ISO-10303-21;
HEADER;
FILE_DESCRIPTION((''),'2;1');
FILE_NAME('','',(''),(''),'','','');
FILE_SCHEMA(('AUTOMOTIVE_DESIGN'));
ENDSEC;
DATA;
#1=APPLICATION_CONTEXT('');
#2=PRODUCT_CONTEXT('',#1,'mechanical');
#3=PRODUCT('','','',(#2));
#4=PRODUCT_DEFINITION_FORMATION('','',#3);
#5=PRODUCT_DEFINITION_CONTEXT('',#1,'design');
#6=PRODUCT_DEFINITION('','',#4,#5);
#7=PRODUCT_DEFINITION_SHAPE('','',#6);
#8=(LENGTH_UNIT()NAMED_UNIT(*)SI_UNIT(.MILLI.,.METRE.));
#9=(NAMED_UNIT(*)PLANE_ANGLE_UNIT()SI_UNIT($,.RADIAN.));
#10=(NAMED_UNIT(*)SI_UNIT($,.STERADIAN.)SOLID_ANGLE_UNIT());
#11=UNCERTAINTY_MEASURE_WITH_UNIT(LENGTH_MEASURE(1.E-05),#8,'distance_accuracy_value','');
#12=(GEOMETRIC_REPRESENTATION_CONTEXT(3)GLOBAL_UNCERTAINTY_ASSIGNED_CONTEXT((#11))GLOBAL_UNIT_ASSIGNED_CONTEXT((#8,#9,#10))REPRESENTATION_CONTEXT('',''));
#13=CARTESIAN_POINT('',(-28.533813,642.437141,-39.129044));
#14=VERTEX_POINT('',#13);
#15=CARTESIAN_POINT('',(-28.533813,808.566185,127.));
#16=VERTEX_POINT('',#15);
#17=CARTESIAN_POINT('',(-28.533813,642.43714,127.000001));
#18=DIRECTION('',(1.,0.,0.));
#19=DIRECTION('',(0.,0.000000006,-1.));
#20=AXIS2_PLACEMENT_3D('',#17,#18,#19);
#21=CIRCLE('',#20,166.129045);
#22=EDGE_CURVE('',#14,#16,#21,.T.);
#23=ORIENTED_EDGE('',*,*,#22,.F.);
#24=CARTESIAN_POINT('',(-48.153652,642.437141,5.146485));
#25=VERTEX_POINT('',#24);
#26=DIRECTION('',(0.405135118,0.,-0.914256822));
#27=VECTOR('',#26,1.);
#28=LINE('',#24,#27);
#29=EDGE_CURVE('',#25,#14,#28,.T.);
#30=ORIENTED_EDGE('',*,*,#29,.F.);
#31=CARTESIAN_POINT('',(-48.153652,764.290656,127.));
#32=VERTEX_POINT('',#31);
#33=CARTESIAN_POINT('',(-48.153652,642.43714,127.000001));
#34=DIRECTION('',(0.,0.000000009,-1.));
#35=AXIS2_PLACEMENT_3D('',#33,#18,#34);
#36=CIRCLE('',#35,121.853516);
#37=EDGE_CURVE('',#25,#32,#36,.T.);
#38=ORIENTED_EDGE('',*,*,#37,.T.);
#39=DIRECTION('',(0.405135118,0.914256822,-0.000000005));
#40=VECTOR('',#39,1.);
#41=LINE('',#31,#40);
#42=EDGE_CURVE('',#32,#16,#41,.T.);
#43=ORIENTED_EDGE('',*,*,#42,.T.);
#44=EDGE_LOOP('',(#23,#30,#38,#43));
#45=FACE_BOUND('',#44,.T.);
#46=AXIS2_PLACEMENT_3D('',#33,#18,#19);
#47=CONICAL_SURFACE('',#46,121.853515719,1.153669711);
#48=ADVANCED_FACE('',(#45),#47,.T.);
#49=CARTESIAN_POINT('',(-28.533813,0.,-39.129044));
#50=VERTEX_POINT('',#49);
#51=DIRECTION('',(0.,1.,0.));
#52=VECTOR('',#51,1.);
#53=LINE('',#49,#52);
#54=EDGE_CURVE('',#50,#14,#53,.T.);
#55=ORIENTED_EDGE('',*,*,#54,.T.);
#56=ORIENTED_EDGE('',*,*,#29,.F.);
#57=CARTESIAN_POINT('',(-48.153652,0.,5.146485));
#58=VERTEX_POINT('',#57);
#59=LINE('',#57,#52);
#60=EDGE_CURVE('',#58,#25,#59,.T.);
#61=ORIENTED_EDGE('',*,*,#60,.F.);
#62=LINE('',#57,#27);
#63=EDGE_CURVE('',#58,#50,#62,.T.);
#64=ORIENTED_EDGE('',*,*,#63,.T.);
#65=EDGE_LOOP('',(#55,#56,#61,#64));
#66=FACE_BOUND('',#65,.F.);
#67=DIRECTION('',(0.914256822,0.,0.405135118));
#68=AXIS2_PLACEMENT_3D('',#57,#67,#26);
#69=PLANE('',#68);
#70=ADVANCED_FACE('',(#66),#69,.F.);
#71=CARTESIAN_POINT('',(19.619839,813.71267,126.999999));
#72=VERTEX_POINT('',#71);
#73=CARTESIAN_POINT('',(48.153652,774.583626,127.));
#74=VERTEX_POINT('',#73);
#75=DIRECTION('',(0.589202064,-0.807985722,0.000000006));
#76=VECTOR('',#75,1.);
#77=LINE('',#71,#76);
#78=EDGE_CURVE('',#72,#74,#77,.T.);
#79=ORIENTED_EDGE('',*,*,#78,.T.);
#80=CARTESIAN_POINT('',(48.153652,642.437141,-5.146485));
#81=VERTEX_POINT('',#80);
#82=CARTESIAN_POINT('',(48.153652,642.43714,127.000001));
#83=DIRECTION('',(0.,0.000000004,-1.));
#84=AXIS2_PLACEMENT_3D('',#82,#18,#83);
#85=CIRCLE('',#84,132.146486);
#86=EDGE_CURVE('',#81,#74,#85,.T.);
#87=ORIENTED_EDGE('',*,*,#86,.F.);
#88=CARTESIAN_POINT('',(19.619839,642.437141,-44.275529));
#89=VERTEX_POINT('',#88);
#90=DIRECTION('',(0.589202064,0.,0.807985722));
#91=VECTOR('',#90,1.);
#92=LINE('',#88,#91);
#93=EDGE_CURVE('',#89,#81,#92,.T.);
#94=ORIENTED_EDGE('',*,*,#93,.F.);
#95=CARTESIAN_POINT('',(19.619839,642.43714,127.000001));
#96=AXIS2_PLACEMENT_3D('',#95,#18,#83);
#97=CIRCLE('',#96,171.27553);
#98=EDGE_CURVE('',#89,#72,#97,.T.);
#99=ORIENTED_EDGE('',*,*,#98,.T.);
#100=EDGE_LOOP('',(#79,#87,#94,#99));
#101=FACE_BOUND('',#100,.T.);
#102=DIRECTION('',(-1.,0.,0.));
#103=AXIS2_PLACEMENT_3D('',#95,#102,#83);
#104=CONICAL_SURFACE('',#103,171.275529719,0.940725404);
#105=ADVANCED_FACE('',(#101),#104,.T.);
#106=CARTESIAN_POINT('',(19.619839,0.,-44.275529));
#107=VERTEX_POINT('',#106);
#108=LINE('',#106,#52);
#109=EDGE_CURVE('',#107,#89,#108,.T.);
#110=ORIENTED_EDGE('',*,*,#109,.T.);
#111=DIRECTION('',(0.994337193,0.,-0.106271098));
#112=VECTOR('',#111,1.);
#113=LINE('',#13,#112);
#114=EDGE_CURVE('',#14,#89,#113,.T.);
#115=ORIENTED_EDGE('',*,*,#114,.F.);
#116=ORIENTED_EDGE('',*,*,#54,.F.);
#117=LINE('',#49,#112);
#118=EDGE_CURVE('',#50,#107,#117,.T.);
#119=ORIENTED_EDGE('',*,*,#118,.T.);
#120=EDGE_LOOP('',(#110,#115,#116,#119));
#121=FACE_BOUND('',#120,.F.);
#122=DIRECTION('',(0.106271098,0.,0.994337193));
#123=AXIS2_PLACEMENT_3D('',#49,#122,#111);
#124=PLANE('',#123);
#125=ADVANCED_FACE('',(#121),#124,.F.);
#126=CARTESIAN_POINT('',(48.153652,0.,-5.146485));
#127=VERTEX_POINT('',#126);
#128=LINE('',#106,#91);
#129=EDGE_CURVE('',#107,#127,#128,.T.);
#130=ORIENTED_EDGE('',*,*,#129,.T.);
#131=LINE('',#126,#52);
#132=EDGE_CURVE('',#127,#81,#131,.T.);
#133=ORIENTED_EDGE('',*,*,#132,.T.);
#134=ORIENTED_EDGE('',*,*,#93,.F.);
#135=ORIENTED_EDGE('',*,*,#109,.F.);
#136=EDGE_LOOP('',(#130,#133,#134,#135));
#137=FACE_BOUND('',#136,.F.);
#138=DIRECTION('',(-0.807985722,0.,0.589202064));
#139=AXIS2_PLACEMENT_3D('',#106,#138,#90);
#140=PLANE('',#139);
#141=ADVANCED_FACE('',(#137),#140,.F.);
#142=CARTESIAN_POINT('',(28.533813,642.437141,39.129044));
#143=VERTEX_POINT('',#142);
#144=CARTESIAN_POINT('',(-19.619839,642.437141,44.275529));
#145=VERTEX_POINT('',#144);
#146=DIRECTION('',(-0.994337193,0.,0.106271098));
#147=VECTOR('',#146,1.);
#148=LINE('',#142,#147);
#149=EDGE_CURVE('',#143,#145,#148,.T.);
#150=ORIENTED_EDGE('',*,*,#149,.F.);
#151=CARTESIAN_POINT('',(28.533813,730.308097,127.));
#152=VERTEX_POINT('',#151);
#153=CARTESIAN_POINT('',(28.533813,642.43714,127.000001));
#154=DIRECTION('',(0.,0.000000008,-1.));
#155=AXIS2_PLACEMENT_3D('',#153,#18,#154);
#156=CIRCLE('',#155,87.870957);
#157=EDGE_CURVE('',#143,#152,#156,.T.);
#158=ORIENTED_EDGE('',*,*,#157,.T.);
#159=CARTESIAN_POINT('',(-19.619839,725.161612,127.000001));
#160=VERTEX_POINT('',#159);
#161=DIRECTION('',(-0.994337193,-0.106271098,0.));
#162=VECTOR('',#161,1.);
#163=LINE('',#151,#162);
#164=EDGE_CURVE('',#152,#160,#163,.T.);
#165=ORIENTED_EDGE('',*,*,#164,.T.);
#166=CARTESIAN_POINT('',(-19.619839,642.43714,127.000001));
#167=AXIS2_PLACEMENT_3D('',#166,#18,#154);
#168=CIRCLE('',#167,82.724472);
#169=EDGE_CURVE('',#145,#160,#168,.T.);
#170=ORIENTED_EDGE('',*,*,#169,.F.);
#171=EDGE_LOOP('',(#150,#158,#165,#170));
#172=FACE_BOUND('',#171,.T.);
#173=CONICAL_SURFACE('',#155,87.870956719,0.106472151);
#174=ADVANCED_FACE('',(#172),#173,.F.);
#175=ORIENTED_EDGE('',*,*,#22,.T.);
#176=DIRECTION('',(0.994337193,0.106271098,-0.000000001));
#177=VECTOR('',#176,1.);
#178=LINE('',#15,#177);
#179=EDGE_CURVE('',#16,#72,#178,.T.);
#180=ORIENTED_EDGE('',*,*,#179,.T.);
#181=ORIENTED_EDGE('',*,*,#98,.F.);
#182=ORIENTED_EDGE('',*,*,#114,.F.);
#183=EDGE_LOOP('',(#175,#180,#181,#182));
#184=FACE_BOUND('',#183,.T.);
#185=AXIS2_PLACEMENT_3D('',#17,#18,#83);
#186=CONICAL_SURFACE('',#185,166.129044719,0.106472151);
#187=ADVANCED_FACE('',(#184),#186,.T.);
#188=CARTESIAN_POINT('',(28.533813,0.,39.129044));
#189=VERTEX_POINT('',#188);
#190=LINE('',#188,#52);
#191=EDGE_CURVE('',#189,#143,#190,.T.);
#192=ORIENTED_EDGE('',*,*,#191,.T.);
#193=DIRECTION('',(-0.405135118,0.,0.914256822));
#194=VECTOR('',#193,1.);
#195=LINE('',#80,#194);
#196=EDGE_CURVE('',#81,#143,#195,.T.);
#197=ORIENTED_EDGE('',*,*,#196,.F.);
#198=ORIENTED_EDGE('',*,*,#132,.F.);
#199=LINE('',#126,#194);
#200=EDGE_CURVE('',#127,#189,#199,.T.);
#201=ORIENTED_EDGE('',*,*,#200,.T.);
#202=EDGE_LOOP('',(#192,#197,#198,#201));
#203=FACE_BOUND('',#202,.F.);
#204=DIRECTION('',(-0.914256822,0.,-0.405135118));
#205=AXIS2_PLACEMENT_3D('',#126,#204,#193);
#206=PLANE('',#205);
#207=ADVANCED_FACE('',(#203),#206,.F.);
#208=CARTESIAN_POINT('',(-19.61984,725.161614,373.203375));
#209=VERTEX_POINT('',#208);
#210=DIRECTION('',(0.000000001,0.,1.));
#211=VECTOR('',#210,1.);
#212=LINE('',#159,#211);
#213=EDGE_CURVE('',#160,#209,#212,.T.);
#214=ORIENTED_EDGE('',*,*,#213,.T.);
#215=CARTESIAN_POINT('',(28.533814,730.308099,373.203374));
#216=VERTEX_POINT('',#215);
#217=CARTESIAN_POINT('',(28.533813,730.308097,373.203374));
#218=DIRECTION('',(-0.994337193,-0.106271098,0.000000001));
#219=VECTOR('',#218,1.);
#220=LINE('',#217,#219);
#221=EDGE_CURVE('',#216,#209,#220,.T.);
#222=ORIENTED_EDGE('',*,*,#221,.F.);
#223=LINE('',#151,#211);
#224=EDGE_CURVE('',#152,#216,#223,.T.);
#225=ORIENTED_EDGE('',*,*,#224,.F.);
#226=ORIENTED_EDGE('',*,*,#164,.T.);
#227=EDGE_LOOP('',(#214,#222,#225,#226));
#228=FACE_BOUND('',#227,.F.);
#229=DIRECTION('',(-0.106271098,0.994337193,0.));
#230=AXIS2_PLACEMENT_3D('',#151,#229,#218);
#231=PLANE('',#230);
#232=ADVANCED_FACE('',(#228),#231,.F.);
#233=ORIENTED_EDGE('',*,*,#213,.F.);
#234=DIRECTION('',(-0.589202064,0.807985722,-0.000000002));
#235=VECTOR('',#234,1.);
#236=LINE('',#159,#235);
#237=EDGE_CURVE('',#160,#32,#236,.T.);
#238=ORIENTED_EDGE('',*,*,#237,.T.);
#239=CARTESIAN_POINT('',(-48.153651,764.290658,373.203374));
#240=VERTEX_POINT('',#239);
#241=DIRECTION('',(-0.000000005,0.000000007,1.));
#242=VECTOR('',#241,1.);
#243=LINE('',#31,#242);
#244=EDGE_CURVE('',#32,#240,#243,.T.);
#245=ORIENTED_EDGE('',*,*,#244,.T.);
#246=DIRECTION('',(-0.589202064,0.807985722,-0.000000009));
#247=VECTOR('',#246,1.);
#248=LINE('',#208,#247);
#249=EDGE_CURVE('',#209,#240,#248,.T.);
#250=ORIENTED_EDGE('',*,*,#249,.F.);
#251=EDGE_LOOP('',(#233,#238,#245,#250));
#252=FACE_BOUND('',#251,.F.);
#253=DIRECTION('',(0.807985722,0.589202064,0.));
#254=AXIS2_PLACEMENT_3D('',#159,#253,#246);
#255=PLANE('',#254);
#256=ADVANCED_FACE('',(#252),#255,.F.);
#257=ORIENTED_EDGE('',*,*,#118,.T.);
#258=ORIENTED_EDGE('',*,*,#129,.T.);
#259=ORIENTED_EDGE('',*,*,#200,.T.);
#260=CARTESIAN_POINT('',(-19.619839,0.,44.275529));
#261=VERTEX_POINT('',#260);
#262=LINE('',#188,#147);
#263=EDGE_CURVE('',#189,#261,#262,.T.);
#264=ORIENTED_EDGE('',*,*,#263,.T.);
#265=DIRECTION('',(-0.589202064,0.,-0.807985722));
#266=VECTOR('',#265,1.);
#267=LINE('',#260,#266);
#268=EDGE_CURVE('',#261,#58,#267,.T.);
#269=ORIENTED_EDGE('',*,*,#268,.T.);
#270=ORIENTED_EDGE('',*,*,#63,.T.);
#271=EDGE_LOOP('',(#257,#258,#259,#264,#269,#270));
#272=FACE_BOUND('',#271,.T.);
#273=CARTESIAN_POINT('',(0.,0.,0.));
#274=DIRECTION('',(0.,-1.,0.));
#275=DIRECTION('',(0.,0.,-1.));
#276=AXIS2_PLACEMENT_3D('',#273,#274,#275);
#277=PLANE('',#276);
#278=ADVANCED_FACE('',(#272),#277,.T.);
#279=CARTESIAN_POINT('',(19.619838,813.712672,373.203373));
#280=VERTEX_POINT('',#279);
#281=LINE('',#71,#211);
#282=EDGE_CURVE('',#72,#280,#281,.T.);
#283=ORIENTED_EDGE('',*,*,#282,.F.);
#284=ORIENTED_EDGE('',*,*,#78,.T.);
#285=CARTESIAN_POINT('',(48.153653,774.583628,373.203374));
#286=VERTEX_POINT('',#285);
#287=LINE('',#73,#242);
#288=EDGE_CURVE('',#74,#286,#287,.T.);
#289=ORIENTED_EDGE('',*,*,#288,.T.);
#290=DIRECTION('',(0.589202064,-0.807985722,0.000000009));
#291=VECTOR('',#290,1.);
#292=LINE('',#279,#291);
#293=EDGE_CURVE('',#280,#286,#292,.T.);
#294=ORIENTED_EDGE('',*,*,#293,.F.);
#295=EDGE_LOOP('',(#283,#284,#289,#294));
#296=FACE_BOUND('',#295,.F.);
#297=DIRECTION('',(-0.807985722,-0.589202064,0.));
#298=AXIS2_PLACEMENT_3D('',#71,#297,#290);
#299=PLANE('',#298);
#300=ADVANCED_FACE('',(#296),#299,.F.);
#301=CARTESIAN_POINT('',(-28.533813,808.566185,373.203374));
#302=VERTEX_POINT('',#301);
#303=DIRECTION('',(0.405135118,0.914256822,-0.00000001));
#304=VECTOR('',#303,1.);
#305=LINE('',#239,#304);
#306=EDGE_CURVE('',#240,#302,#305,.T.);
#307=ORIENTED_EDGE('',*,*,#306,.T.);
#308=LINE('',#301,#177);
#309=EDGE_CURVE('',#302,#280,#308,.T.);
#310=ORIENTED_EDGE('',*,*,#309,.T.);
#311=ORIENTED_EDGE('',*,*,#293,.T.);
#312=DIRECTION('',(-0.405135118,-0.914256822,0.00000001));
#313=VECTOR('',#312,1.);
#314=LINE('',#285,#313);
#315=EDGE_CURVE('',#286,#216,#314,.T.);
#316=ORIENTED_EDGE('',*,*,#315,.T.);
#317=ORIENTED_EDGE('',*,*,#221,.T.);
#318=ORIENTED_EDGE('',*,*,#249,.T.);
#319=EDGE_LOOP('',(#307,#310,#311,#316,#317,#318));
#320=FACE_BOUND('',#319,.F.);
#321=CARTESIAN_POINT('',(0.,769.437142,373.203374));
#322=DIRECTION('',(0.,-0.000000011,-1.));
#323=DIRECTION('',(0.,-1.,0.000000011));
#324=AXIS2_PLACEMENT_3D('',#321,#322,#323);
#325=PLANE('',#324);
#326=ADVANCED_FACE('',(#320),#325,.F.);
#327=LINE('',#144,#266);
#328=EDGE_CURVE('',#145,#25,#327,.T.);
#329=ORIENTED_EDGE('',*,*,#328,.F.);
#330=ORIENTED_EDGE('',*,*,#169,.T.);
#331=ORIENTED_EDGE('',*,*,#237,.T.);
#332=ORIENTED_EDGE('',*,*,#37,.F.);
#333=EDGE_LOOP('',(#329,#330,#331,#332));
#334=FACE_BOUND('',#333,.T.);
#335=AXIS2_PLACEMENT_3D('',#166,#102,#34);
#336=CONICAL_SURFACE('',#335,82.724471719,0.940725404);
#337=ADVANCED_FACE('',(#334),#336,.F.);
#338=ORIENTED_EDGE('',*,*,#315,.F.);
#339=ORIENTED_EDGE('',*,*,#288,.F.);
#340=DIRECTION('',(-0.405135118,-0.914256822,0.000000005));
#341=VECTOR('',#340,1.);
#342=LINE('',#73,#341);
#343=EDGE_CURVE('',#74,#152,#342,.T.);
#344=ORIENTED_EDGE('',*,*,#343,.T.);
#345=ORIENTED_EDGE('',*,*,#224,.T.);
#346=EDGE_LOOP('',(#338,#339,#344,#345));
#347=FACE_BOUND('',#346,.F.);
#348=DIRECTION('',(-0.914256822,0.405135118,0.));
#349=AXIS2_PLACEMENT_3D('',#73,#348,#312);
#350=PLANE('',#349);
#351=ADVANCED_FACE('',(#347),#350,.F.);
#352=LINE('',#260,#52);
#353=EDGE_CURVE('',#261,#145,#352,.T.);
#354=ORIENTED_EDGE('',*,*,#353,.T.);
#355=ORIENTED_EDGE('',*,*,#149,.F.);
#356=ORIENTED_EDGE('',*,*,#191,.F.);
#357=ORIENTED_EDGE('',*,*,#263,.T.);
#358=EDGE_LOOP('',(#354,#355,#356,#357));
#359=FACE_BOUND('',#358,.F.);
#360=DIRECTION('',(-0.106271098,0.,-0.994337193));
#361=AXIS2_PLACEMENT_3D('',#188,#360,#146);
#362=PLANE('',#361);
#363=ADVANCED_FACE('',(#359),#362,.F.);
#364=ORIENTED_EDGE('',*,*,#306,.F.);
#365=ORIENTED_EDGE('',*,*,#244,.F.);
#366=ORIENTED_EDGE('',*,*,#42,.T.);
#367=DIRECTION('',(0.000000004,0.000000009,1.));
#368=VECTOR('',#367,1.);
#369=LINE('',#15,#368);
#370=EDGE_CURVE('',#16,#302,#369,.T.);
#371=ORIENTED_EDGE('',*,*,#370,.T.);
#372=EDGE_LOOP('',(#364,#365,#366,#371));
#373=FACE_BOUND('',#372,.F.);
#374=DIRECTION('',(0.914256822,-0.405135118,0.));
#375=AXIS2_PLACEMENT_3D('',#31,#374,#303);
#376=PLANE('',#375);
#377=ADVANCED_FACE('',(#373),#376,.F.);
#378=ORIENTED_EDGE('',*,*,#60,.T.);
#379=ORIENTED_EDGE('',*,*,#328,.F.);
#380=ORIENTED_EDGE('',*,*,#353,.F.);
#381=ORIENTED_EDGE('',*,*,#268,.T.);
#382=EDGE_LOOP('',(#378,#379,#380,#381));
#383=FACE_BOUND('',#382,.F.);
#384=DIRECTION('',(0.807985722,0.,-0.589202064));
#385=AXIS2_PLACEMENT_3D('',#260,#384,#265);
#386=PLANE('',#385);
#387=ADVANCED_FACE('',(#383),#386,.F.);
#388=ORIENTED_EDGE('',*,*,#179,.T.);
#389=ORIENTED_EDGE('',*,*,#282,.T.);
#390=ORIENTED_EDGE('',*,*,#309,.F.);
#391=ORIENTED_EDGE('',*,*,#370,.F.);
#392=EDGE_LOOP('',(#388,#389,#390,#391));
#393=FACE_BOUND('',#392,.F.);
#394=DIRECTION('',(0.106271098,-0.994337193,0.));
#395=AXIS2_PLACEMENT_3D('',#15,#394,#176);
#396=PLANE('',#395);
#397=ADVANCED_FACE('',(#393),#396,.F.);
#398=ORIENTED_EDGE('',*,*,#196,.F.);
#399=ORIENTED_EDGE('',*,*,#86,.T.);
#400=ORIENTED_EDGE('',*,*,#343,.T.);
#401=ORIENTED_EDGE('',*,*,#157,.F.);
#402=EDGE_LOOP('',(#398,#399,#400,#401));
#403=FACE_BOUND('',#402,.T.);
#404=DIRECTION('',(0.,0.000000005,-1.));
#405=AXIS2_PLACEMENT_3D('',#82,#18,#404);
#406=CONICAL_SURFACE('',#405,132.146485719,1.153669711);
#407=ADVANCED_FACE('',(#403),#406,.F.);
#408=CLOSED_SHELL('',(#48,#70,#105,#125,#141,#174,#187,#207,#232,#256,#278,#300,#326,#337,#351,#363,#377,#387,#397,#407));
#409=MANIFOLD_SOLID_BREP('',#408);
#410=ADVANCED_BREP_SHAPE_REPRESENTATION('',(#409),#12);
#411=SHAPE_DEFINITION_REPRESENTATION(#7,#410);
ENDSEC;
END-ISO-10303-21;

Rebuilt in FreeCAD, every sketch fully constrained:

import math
import FreeCAD as App
import Part
import Sketcher
from FreeCAD import Vector
Q = App.Units.Quantity


def add_polygon(sketch, points):
    """Adds a closed chain of lines whose ends are joined by coincident constraints."""
    first, n = sketch.GeometryCount, len(points)
    for a, b in zip(points, points[1:] + points[:1]):
        sketch.addGeometry(Part.LineSegment(App.Vector(*a, 0), App.Vector(*b, 0)), False)
    for i in range(n):
        sketch.addConstraint(Sketcher.Constraint("Coincident", first + i, 2, first + (i + 1) % n, 1))

doc = App.newDocument("Part")
body = doc.addObject("PartDesign::Body", "Body")

# Sketch on XZ plane
sketch1 = body.newObject("Sketcher::SketchObject", "Sketch")
sketch1.AttachmentSupport = (doc.getObject("XZ_Plane"), [""])
sketch1.MapMode = "FlatFace"
add_polygon(sketch1, [(29, 39), (-20, 44), (-48, 5), (-29, -39), (20, -44), (48, -5)])  # lines 0-5
sketch1.addConstraint([
    Sketcher.Constraint("Symmetric", 0, 2, 3, 2, -1, 1),
    Sketcher.Constraint("Symmetric", 1, 2, 4, 2, -1, 1),
    Sketcher.Constraint("Symmetric", 2, 2, 5, 2, -1, 1),
    Sketcher.Constraint("Equal", 0, 1),
    Sketcher.Constraint("Equal", 1, 2),
    Sketcher.Constraint("Distance", 0, Q("48.42789 mm")),
    Sketcher.Constraint("DistanceX", 0, 2, -1, 1, Q("19.619839 mm")),
    Sketcher.Constraint("DistanceY", -1, 1, 0, 2, Q("44.275529 mm")),
    Sketcher.Constraint("DistanceX", 1, 2, 2, 2, Q("19.619839 mm")),
])

# Sketch on YZ plane
sketch2 = body.newObject("Sketcher::SketchObject", "Sketch001")
sketch2.AttachmentSupport = (doc.getObject("YZ_Plane"), [""])
sketch2.MapMode = "FlatFace"
sketch2.addGeometry([
    Part.LineSegment(Vector(0, 0, 0), Vector(642, 0, 0)),
    Part.ArcOfCircle(Part.Circle(Vector(642, 127, 0), Vector(0, 0, 1), 127), math.radians(-90), math.radians(0)),
    Part.LineSegment(Vector(769, 127, 0), Vector(769, 373, 0)),
], False)
sketch2.addConstraint([
    Sketcher.Constraint("Tangent", 0, 2, 1, 1),
    Sketcher.Constraint("Tangent", 1, 2, 2, 1),
    Sketcher.Constraint("Horizontal", 0),
    Sketcher.Constraint("Vertical", 2),
    Sketcher.Constraint("Coincident", 0, 1, -1, 1),
    Sketcher.Constraint("Radius", 1, Q("5 in")),
    Sketcher.Constraint("DistanceX", 0, 1, 0, 2, Q("642.437141 mm")),
    Sketcher.Constraint("DistanceY", 2, 1, 2, 2, Q("246.203374 mm")),
])
doc.recompute()

additivepipe = body.newObject("PartDesign::AdditivePipe", "AdditivePipe")
additivepipe.Profile = sketch1
additivepipe.Spine = (sketch2, ["Edge1", "Edge2", "Edge3"])

doc.recompute()
